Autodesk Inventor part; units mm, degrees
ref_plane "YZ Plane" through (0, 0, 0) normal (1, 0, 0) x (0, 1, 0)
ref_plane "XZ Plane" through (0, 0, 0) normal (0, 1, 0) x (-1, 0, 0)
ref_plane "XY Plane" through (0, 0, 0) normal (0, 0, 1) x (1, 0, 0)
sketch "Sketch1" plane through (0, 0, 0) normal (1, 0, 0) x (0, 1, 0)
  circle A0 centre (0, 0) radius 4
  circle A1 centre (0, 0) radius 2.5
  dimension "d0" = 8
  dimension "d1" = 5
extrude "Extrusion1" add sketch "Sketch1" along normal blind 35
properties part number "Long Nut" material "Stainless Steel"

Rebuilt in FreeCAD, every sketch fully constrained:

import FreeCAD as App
import Part
import Sketcher
from FreeCAD import Vector
Q = App.Units.Quantity

doc = App.newDocument("Part")
params = doc.addObject("Spreadsheet::Sheet", "Params")
for row, (alias, value) in enumerate([
    ("sketch1_diameter", "8 mm"),
    ("sketch1_diameter2", "5 mm"),
    ("pad1_length", "35 mm"),
], start=1):
    params.set(f"A{row}", alias)
    params.set(f"B{row}", "=" + value)
    params.setAlias(f"B{row}", alias)

body = doc.addObject("PartDesign::Body", "Body")

sketch1 = body.newObject("Sketcher::SketchObject", "Sketch")
sketch1.AttachmentSupport = (doc.getObject("YZ_Plane"), [""])
sketch1.MapMode = "FlatFace"
sketch1.addGeometry(Part.Circle(Vector(0, 0, 0), Vector(0, 0, 1), 4), False)
sketch1.addGeometry(Part.Circle(Vector(0, 0, 0), Vector(0, 0, 1), 2.5), False)
sketch1.addConstraint(Sketcher.Constraint("Coincident", 0, 3, -1, 1))
sketch1.addConstraint(Sketcher.Constraint("Coincident", 1, 3, -1, 1))
sketch1.addConstraint(Sketcher.Constraint("Diameter", 0, Q("8 mm")))
sketch1.addConstraint(Sketcher.Constraint("Diameter", 1, Q("5 mm")))
sketch1.setExpression("Constraints[2]", "Params.sketch1_diameter")
sketch1.setExpression("Constraints[3]", "Params.sketch1_diameter2")
pad1 = body.newObject("PartDesign::Pad", "Pad")
pad1.Profile = sketch1
pad1.setExpression("Length", "Params.pad1_length")

doc.recompute()
